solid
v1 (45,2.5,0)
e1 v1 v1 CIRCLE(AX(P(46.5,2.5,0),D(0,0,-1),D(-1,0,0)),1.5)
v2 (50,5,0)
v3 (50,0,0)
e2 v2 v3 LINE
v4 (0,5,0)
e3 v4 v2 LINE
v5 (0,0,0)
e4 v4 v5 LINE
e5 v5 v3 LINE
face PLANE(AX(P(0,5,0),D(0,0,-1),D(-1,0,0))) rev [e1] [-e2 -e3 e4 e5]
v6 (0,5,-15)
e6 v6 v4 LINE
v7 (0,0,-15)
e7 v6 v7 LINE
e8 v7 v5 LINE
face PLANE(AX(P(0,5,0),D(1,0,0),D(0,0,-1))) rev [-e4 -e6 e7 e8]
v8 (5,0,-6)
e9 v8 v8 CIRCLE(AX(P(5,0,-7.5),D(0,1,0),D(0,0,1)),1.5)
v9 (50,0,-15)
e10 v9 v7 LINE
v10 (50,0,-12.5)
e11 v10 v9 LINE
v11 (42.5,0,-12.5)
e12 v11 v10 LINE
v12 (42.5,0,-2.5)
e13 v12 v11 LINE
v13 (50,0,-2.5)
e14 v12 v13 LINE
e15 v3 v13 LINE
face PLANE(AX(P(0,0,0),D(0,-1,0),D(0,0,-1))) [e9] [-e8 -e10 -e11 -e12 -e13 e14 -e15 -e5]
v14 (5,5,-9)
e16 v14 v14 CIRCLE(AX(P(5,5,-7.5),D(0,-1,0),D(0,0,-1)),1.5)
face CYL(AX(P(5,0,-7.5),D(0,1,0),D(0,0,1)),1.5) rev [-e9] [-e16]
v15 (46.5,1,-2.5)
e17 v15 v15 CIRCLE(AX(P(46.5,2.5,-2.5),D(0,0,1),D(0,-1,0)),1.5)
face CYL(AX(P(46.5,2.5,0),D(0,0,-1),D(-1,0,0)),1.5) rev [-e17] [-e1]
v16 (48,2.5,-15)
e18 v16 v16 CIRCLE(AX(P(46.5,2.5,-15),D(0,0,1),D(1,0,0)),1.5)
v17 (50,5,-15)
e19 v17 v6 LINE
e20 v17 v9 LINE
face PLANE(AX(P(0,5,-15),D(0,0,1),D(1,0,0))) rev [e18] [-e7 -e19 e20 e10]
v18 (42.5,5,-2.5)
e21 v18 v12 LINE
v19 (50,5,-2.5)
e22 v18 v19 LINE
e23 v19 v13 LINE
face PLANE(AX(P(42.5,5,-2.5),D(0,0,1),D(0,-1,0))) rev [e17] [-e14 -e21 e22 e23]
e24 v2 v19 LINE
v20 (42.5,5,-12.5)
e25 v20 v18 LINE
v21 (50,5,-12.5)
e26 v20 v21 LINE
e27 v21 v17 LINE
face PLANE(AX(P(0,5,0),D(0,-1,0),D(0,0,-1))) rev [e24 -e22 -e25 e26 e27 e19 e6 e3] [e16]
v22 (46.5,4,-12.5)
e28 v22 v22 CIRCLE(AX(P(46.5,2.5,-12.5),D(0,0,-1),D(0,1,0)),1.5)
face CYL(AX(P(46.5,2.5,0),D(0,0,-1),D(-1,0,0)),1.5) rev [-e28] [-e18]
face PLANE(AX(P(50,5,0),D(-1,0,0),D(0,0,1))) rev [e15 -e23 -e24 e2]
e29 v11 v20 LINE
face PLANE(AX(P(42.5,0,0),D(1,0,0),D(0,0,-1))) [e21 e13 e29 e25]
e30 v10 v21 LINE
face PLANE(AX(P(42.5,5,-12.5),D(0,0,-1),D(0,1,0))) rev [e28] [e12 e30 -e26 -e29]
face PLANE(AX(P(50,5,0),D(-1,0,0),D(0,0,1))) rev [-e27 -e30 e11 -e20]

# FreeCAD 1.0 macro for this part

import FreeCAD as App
import Part
import Sketcher
Q = App.Units.Quantity


def add_polygon(sketch, points):
    """Adds a closed chain of lines whose ends are joined by coincident constraints."""
    first, n = sketch.GeometryCount, len(points)
    for a, b in zip(points, points[1:] + points[:1]):
        sketch.addGeometry(Part.LineSegment(App.Vector(*a, 0), App.Vector(*b, 0)), False)
    for i in range(n):
        sketch.addConstraint(Sketcher.Constraint("Coincident", first + i, 2, first + (i + 1) % n, 1))

doc = App.newDocument("Part")
params = doc.addObject("Spreadsheet::Sheet", "Params")
for row, (alias, value) in enumerate([
    ("sketch1_width", "50 mm"),
    ("sketch1_height", "15 mm"),
    ("pad1_length", "5 mm"),
    ("sketch2_diameter", "3 mm"),
    ("sketch3_width", "5 mm"),
    ("sketch3_height", "10 mm"),
    ("pocket2_length", "7.5 mm"),
    ("sketch4_diameter", "3 mm"),
], start=1):
    params.set(f"A{row}", alias)
    params.set(f"B{row}", "=" + value)
    params.setAlias(f"B{row}", alias)

body = doc.addObject("PartDesign::Body", "Body")

# Sketch on XZ plane
sketch1 = body.newObject("Sketcher::SketchObject", "Sketch")
sketch1.AttachmentSupport = (doc.getObject("XZ_Plane"), [""])
sketch1.MapMode = "FlatFace"
add_polygon(sketch1, [(0, -15), (0, 0), (50, 0), (50, -15)])  # lines 0-3
sketch1.addConstraint(Sketcher.Constraint("Vertical", 0))
sketch1.addConstraint(Sketcher.Constraint("Horizontal", 1))
sketch1.addConstraint(Sketcher.Constraint("Vertical", 2))
sketch1.addConstraint(Sketcher.Constraint("Horizontal", 3))
sketch1.addConstraint(Sketcher.Constraint("Coincident", 0, 2, -1, 1))
sketch1.addConstraint(Sketcher.Constraint("DistanceX", 1, 1, 1, 2, Q("50 mm")))
sketch1.addConstraint(Sketcher.Constraint("DistanceY", 0, 1, 0, 2, Q("15 mm")))
sketch1.setExpression("Constraints[9]", "Params.sketch1_width")
sketch1.setExpression("Constraints[10]", "Params.sketch1_height")
pad1 = body.newObject("PartDesign::Pad", "Pad")
pad1.Profile = sketch1
pad1.setExpression("Length", "Params.pad1_length")
pad1.Reversed = True

# Sketch on XZ plane
sketch2 = body.newObject("Sketcher::SketchObject", "Sketch001")
sketch2.AttachmentSupport = (doc.getObject("XZ_Plane"), [""])
sketch2.MapMode = "FlatFace"
sketch2.AttachmentOffset = App.Placement(App.Vector(0, 0, -5), App.Rotation())
sketch2.addGeometry(Part.Circle(App.Vector(5, -7.5, 0), App.Vector(0, 0, 1), 1.5), False)
sketch2.addConstraint(Sketcher.Constraint("Diameter", 0, Q("3 mm")))
sketch2.addConstraint(Sketcher.Constraint("DistanceX", -1, 1, 0, 3, Q("5 mm")))
sketch2.addConstraint(Sketcher.Constraint("DistanceY", 0, 3, -1, 1, Q("7.5 mm")))
sketch2.setExpression("Constraints[0]", "Params.sketch2_diameter")
pocket1 = body.newObject("PartDesign::Pocket", "Pocket")
pocket1.Profile = sketch2
pocket1.Type = "ThroughAll"
pocket1.Midplane = True

# Sketch on YZ plane
sketch3 = body.newObject("Sketcher::SketchObject", "Sketch002")
sketch3.AttachmentSupport = (doc.getObject("YZ_Plane"), [""])
sketch3.MapMode = "FlatFace"
sketch3.AttachmentOffset = App.Placement(App.Vector(0, 0, 50), App.Rotation())
add_polygon(sketch3, [(5, -2), (0, -2), (0, -12), (5, -12)])  # lines 0-3
sketch3.addConstraint(Sketcher.Constraint("Horizontal", 0))
sketch3.addConstraint(Sketcher.Constraint("Vertical", 1))
sketch3.addConstraint(Sketcher.Constraint("Horizontal", 2))
sketch3.addConstraint(Sketcher.Constraint("Vertical", 3))
sketch3.addConstraint(Sketcher.Constraint("PointOnObject", 0, 2, -2))
sketch3.addConstraint(Sketcher.Constraint("DistanceX", 0, 2, 0, 1, Q("5 mm")))
sketch3.addConstraint(Sketcher.Constraint("DistanceY", 1, 2, 1, 1, Q("10 mm")))
sketch3.addConstraint(Sketcher.Constraint("DistanceY", 0, 2, -1, 1, Q("2.5 mm")))
sketch3.setExpression("Constraints[9]", "Params.sketch3_width")
sketch3.setExpression("Constraints[10]", "Params.sketch3_height")
pocket2 = body.newObject("PartDesign::Pocket", "Pocket001")
pocket2.Profile = sketch3
pocket2.setExpression("Length", "Params.pocket2_length")

# Sketch on XY plane
sketch4 = body.newObject("Sketcher::SketchObject", "Sketch003")
sketch4.AttachmentSupport = (doc.getObject("XY_Plane"), [""])
sketch4.MapMode = "FlatFace"
sketch4.AttachmentOffset = App.Placement(App.Vector(0, 0, -15), App.Rotation())
sketch4.addGeometry(Part.Circle(App.Vector(46.5, 2.5, 0), App.Vector(0, 0, 1), 1.5), False)
sketch4.addConstraint(Sketcher.Constraint("Diameter", 0, Q("3 mm")))
sketch4.addConstraint(Sketcher.Constraint("DistanceX", -1, 1, 0, 3, Q("46.5 mm")))
sketch4.addConstraint(Sketcher.Constraint("DistanceY", -1, 1, 0, 3, Q("2.5 mm")))
sketch4.setExpression("Constraints[0]", "Params.sketch4_diameter")
pocket3 = body.newObject("PartDesign::Pocket", "Pocket002")
pocket3.Profile = sketch4
pocket3.Type = "ThroughAll"
pocket3.Midplane = True

doc.recompute()
